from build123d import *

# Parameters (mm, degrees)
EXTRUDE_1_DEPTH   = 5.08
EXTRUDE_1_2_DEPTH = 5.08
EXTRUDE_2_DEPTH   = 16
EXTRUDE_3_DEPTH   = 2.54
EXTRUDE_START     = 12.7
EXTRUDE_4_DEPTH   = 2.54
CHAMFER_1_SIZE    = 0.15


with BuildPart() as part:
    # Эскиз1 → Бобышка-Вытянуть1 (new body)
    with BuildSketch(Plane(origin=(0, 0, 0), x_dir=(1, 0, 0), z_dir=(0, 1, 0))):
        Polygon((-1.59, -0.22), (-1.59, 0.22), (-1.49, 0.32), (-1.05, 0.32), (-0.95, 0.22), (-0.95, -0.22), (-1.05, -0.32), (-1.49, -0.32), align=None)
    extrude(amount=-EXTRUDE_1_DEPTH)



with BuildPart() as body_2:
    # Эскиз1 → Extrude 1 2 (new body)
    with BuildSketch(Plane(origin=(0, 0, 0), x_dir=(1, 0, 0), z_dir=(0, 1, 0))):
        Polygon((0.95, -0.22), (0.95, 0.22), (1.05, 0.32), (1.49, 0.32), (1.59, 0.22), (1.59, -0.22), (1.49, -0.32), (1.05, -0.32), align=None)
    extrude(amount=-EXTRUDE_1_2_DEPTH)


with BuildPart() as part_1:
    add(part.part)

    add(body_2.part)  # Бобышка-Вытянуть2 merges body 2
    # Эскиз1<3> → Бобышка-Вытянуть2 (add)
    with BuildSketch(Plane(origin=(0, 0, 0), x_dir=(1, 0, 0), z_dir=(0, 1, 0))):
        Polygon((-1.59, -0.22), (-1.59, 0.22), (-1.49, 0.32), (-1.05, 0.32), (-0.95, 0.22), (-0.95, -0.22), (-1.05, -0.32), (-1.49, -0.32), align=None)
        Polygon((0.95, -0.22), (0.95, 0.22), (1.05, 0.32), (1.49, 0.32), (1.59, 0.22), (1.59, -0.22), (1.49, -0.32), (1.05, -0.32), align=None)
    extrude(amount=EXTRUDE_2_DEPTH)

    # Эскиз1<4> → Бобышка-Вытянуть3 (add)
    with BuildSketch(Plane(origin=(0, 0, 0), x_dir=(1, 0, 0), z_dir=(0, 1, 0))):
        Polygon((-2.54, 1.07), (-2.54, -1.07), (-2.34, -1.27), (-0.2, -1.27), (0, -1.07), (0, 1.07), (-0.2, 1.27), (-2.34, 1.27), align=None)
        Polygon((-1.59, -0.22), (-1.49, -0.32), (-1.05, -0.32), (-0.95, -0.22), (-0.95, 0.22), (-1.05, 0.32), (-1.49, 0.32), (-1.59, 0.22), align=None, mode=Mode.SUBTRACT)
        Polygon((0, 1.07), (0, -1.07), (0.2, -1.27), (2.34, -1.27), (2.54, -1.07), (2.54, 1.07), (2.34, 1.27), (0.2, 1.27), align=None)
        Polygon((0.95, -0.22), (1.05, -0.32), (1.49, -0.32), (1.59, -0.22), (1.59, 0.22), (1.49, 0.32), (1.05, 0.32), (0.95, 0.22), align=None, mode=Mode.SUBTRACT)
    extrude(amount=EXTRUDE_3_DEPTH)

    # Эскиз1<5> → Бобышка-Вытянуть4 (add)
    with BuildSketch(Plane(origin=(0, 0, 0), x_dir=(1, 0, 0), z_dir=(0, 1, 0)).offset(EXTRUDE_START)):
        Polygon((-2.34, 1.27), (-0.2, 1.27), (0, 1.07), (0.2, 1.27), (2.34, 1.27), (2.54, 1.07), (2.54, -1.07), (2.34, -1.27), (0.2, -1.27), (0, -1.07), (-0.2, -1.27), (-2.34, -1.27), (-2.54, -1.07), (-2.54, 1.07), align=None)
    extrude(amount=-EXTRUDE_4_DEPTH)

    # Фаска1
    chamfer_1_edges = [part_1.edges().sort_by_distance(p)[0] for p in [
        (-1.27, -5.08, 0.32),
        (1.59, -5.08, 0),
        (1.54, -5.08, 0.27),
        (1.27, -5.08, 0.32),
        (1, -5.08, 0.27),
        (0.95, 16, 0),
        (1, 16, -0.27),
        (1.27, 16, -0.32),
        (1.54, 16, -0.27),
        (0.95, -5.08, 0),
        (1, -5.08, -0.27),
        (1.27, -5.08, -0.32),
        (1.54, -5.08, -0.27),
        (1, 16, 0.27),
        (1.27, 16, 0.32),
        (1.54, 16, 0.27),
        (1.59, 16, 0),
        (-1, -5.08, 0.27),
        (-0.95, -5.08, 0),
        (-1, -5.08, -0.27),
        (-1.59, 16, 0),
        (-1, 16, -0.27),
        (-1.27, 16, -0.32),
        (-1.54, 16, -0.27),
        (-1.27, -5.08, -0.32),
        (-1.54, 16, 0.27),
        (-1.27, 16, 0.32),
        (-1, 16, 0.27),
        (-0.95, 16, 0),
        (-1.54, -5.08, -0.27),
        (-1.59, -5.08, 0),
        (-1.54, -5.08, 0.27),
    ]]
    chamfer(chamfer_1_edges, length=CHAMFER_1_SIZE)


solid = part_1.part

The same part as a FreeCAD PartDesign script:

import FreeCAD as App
import Part
import Sketcher
from FreeCAD import Vector
Q = App.Units.Quantity


def edges_at(feature, points):
    """Names of the edges that pass closest to the given points."""
    edges = feature.Shape.Edges
    near = lambda p: min(range(len(edges)), key=lambda i: edges[i].distToShape(Part.Vertex(*p))[0])
    return sorted({f"Edge{near(p) + 1}" for p in points})


def add_polygon(sketch, points):
    """Adds a closed chain of lines whose ends are joined by coincident constraints."""
    first, n = sketch.GeometryCount, len(points)
    for a, b in zip(points, points[1:] + points[:1]):
        sketch.addGeometry(Part.LineSegment(App.Vector(*a, 0), App.Vector(*b, 0)), False)
    for i in range(n):
        sketch.addConstraint(Sketcher.Constraint("Coincident", first + i, 2, first + (i + 1) % n, 1))

doc = App.newDocument("Part")
body = doc.addObject("PartDesign::Body", "Body")

sketch1 = body.newObject("Sketcher::SketchObject", "Sketch")
sketch1.AttachmentSupport = (doc.getObject("XZ_Plane"), [""])
sketch1.MapMode = "FlatFace"
add_polygon(sketch1, [(-1.59, -0.22), (-1.59, 0.22), (-1.49, 0.32), (-1.05, 0.32), (-0.95, 0.22), (-0.95, -0.22), (-1.05, -0.32), (-1.49, -0.32)])
sketch1.addConstraint(Sketcher.Constraint("Vertical", 0))
sketch1.addConstraint(Sketcher.Constraint("Horizontal", 2))
sketch1.addConstraint(Sketcher.Constraint("Vertical", 4))
sketch1.addConstraint(Sketcher.Constraint("Horizontal", 6))
sketch1.addConstraint(Sketcher.Constraint("Symmetric", 2, 2, 5, 2, -1))
sketch1.addConstraint(Sketcher.Constraint("Perpendicular", 1, 3))
sketch1.addConstraint(Sketcher.Constraint("Perpendicular", 3, 5))
sketch1.addConstraint(Sketcher.Constraint("Perpendicular", 5, 7))
sketch1.addConstraint(Sketcher.Constraint("Horizontal", 0, 2, 3, 2))
sketch1.addConstraint(Sketcher.Constraint("Horizontal", 4, 2, 7, 2))
sketch1.addConstraint(Sketcher.Constraint("Vertical", 1, 2, 6, 2))
sketch1.addConstraint(Sketcher.Constraint("Equal", 6, 0))
sketch1.addConstraint(Sketcher.Constraint("DistanceX", 2, 1, 2, 2, Q("0.44 mm")))
sketch1.addConstraint(Sketcher.Constraint("DistanceX", 0, 2, -1, 1, Q("1.59 mm")))
sketch1.addConstraint(Sketcher.Constraint("DistanceX", 1, 2, -1, 1, Q("1.49 mm")))
pad1 = body.newObject("PartDesign::Pad", "Pad")
pad1.Profile = sketch1
pad1.Length = Q("0.2 in")
body2 = doc.addObject("PartDesign::Body", "Body001")

sketch2 = body2.newObject("Sketcher::SketchObject", "Sketch001")
sketch2.AttachmentSupport = (doc.getObject("XZ_Plane001"), [""])
sketch2.MapMode = "FlatFace"
add_polygon(sketch2, [(0.95, -0.22), (0.95, 0.22), (1.05, 0.32), (1.49, 0.32), (1.59, 0.22), (1.59, -0.22), (1.49, -0.32), (1.05, -0.32)])
sketch2.addConstraint(Sketcher.Constraint("Vertical", 0))
sketch2.addConstraint(Sketcher.Constraint("Horizontal", 2))
sketch2.addConstraint(Sketcher.Constraint("Vertical", 4))
sketch2.addConstraint(Sketcher.Constraint("Horizontal", 6))
sketch2.addConstraint(Sketcher.Constraint("Symmetric", 2, 2, 5, 2, -1))
sketch2.addConstraint(Sketcher.Constraint("Perpendicular", 1, 3))
sketch2.addConstraint(Sketcher.Constraint("Perpendicular", 3, 5))
sketch2.addConstraint(Sketcher.Constraint("Perpendicular", 5, 7))
sketch2.addConstraint(Sketcher.Constraint("Horizontal", 0, 2, 3, 2))
sketch2.addConstraint(Sketcher.Constraint("Horizontal", 4, 2, 7, 2))
sketch2.addConstraint(Sketcher.Constraint("Vertical", 1, 2, 6, 2))
sketch2.addConstraint(Sketcher.Constraint("Equal", 6, 0))
sketch2.addConstraint(Sketcher.Constraint("DistanceX", 2, 1, 2, 2, Q("0.44 mm")))
sketch2.addConstraint(Sketcher.Constraint("DistanceX", -1, 1, 0, 2, Q("0.95 mm")))
sketch2.addConstraint(Sketcher.Constraint("DistanceX", -1, 1, 1, 2, Q("1.05 mm")))
pad2 = body2.newObject("PartDesign::Pad", "Pad001")
pad2.Profile = sketch2
pad2.Length = Q("0.2 in")
body.AllowCompound = True
doc.recompute()

boolean = body.newObject("PartDesign::Boolean", "Boolean")
boolean.Type = "Fuse"
boolean.addObjects([body2])

sketch3 = body.newObject("Sketcher::SketchObject", "Sketch002")
sketch3.AttachmentSupport = (doc.getObject("XZ_Plane"), [""])
sketch3.MapMode = "FlatFace"
add_polygon(sketch3, [(-1.59, -0.22), (-1.59, 0.22), (-1.49, 0.32), (-1.05, 0.32), (-0.95, 0.22), (-0.95, -0.22), (-1.05, -0.32), (-1.49, -0.32)])
add_polygon(sketch3, [(0.95, -0.22), (0.95, 0.22), (1.05, 0.32), (1.49, 0.32), (1.59, 0.22), (1.59, -0.22), (1.49, -0.32), (1.05, -0.32)])
sketch3.addConstraint(Sketcher.Constraint("Vertical", 0))
sketch3.addConstraint(Sketcher.Constraint("Horizontal", 2))
sketch3.addConstraint(Sketcher.Constraint("Vertical", 4))
sketch3.addConstraint(Sketcher.Constraint("Horizontal", 6))
sketch3.addConstraint(Sketcher.Constraint("Vertical", 8))
sketch3.addConstraint(Sketcher.Constraint("Horizontal", 10))
sketch3.addConstraint(Sketcher.Constraint("Vertical", 12))
sketch3.addConstraint(Sketcher.Constraint("Horizontal", 14))
sketch3.addConstraint(Sketcher.Constraint("Symmetric", 4, 2, 8, 2, -1, 1))
sketch3.addConstraint(Sketcher.Constraint("Symmetric", 5, 2, 9, 2, -1, 1))
sketch3.addConstraint(Sketcher.Constraint("Symmetric", 7, 2, 11, 2, -1, 1))
sketch3.addConstraint(Sketcher.Constraint("Symmetric", 1, 2, 13, 2, -1, 1))
sketch3.addConstraint(Sketcher.Constraint("Symmetric", 2, 2, 9, 2, -2))
sketch3.addConstraint(Sketcher.Constraint("Perpendicular", 1, 3))
sketch3.addConstraint(Sketcher.Constraint("Perpendicular", 3, 5))
sketch3.addConstraint(Sketcher.Constraint("Perpendicular", 5, 7))
sketch3.addConstraint(Sketcher.Constraint("Perpendicular", 9, 11))
sketch3.addConstraint(Sketcher.Constraint("Perpendicular", 11, 13))
sketch3.addConstraint(Sketcher.Constraint("Perpendicular", 13, 15))
sketch3.addConstraint(Sketcher.Constraint("Horizontal", 0, 2, 3, 2))
sketch3.addConstraint(Sketcher.Constraint("Horizontal", 4, 2, 7, 2))
sketch3.addConstraint(Sketcher.Constraint("Horizontal", 3, 2, 8, 2))
sketch3.addConstraint(Sketcher.Constraint("Horizontal", 12, 2, 15, 2))
sketch3.addConstraint(Sketcher.Constraint("Equal", 14, 0))
sketch3.addConstraint(Sketcher.Constraint("DistanceX", 2, 2, 10, 2, Q("0.1 in")))
sketch3.addConstraint(Sketcher.Constraint("DistanceX", 2, 1, 2, 2, Q("0.44 mm")))
sketch3.addConstraint(Sketcher.Constraint("DistanceX", 0, 2, -1, 1, Q("1.59 mm")))
pad3 = body.newObject("PartDesign::Pad", "Pad002")
pad3.Profile = sketch3
pad3.Length = 16
pad3.Reversed = True

sketch4 = body.newObject("Sketcher::SketchObject", "Sketch003")
sketch4.AttachmentSupport = (doc.getObject("XZ_Plane"), [""])
sketch4.MapMode = "FlatFace"
add_polygon(sketch4, [(-2.54, -1.07), (-2.54, 1.07), (-2.34, 1.27), (-0.2, 1.27), (0, 1.07), (0.2, 1.27), (2.34, 1.27), (2.54, 1.07), (2.54, -1.07), (2.34, -1.27), (0.2, -1.27), (0, -1.07), (-0.2, -1.27), (-2.34, -1.27)])
add_polygon(sketch4, [(-1.49, 0.32), (-1.59, 0.22), (-1.59, -0.22), (-1.49, -0.32), (-1.05, -0.32), (-0.95, -0.22), (-0.95, 0.22), (-1.05, 0.32)])
add_polygon(sketch4, [(1.05, 0.32), (0.95, 0.22), (0.95, -0.22), (1.05, -0.32), (1.49, -0.32), (1.59, -0.22), (1.59, 0.22), (1.49, 0.32)])
sketch4.addConstraint(Sketcher.Constraint("Vertical", 0))
sketch4.addConstraint(Sketcher.Constraint("Horizontal", 2))
sketch4.addConstraint(Sketcher.Constraint("Horizontal", 5))
sketch4.addConstraint(Sketcher.Constraint("Vertical", 7))
sketch4.addConstraint(Sketcher.Constraint("Horizontal", 9))
sketch4.addConstraint(Sketcher.Constraint("Horizontal", 12))
sketch4.addConstraint(Sketcher.Constraint("Vertical", 15))
sketch4.addConstraint(Sketcher.Constraint("Horizontal", 17))
sketch4.addConstraint(Sketcher.Constraint("Vertical", 19))
sketch4.addConstraint(Sketcher.Constraint("Horizontal", 21))
sketch4.addConstraint(Sketcher.Constraint("Vertical", 23))
sketch4.addConstraint(Sketcher.Constraint("Horizontal", 25))
sketch4.addConstraint(Sketcher.Constraint("Vertical", 27))
sketch4.addConstraint(Sketcher.Constraint("Horizontal", 29))
sketch4.addConstraint(Sketcher.Constraint("Symmetric", 0, 2, 7, 2, -1, 1))
sketch4.addConstraint(Sketcher.Constraint("Symmetric", 1, 2, 8, 2, -1, 1))
sketch4.addConstraint(Sketcher.Constraint("Symmetric", 3, 2, 10, 2, -1, 1))
sketch4.addConstraint(Sketcher.Constraint("Symmetric", 4, 2, 11, 2, -1, 1))
sketch4.addConstraint(Sketcher.Constraint("Symmetric", 18, 2, 22, 2, -1, 1))
sketch4.addConstraint(Sketcher.Constraint("Symmetric", 20, 2, 24, 2, -1, 1))
sketch4.addConstraint(Sketcher.Constraint("Symmetric", 14, 2, 26, 2, -1, 1))
sketch4.addConstraint(Sketcher.Constraint("Symmetric", 16, 2, 28, 2, -1, 1))
sketch4.addConstraint(Sketcher.Constraint("Symmetric", 2, 2, 4, 2, -2))
sketch4.addConstraint(Sketcher.Constraint("Symmetric", 17, 2, 24, 2, -2))
sketch4.addConstraint(Sketcher.Constraint("PointOnObject", 3, 2, -2))
sketch4.addConstraint(Sketcher.Constraint("Perpendicular", 1, 3))
sketch4.addConstraint(Sketcher.Constraint("Perpendicular", 3, 4))
sketch4.addConstraint(Sketcher.Constraint("Perpendicular", 4, 6))
sketch4.addConstraint(Sketcher.Constraint("Perpendicular", 8, 10))
sketch4.addConstraint(Sketcher.Constraint("Perpendicular", 11, 13))
sketch4.addConstraint(Sketcher.Constraint("Perpendicular", 13, 14))
sketch4.addConstraint(Sketcher.Constraint("Perpendicular", 14, 16))
sketch4.addConstraint(Sketcher.Constraint("Perpendicular", 16, 18))
sketch4.addConstraint(Sketcher.Constraint("Perpendicular", 18, 20))
sketch4.addConstraint(Sketcher.Constraint("Perpendicular", 20, 22))
sketch4.addConstraint(Sketcher.Constraint("Perpendicular", 22, 24))
sketch4.addConstraint(Sketcher.Constraint("Perpendicular", 24, 26))
sketch4.addConstraint(Sketcher.Constraint("Perpendicular", 26, 28))
sketch4.addConstraint(Sketcher.Constraint("Horizontal", 0, 2, 3, 2))
sketch4.addConstraint(Sketcher.Constraint("Horizontal", 3, 2, 6, 2))
sketch4.addConstraint(Sketcher.Constraint("Horizontal", 10, 2, 13, 2))
sketch4.addConstraint(Sketcher.Constraint("Horizontal", 15, 2, 18, 2))
sketch4.addConstraint(Sketcher.Constraint("Horizontal", 14, 2, 19, 2))
sketch4.addConstraint(Sketcher.Constraint("Equal", 12, 0))
sketch4.addConstraint(Sketcher.Constraint("Equal", 29, 15))
sketch4.addConstraint(Sketcher.Constraint("DistanceX", 0, 2, -1, 1, Q("0.1 in")))
sketch4.addConstraint(Sketcher.Constraint("DistanceX", 2, 1, 2, 2, Q("2.14 mm")))
sketch4.addConstraint(Sketcher.Constraint("DistanceX", 17, 1, 17, 2, Q("0.44 mm")))
sketch4.addConstraint(Sketcher.Constraint("DistanceX", 14, 2, -1, 1, Q("1.59 mm")))
sketch4.addConstraint(Sketcher.Constraint("DistanceX", 16, 2, -1, 1, Q("1.49 mm")))
pad4 = body.newObject("PartDesign::Pad", "Pad003")
pad4.Profile = sketch4
pad4.Length = Q("0.1 in")
pad4.Reversed = True

sketch5 = body.newObject("Sketcher::SketchObject", "Sketch004")
sketch5.AttachmentSupport = (doc.getObject("XZ_Plane"), [""])
sketch5.MapMode = "FlatFace"
sketch5.AttachmentOffset = App.Placement(Vector(0, 0, -0.5 * 25.4), App.Rotation())
add_polygon(sketch5, [(-0.2, -1.27), (-2.34, -1.27), (-2.54, -1.07), (-2.54, 1.07), (-2.34, 1.27), (-0.2, 1.27), (0, 1.07), (0.2, 1.27), (2.34, 1.27), (2.54, 1.07), (2.54, -1.07), (2.34, -1.27), (0.2, -1.27), (0, -1.07)])
sketch5.addConstraint(Sketcher.Constraint("Horizontal", 0))
sketch5.addConstraint(Sketcher.Constraint("Vertical", 2))
sketch5.addConstraint(Sketcher.Constraint("Horizontal", 4))
sketch5.addConstraint(Sketcher.Constraint("Horizontal", 7))
sketch5.addConstraint(Sketcher.Constraint("Vertical", 9))
sketch5.addConstraint(Sketcher.Constraint("Horizontal", 11))
sketch5.addConstraint(Sketcher.Constraint("Symmetric", 0, 2, 7, 2, -1, 1))
sketch5.addConstraint(Sketcher.Constraint("Symmetric", 1, 2, 8, 2, -1, 1))
sketch5.addConstraint(Sketcher.Constraint("Symmetric", 3, 2, 10, 2, -1, 1))
sketch5.addConstraint(Sketcher.Constraint("Symmetric", 5, 2, 12, 2, -1, 1))
sketch5.addConstraint(Sketcher.Constraint("Symmetric", 4, 2, 6, 2, -2))
sketch5.addConstraint(Sketcher.Constraint("PointOnObject", 5, 2, -2))
sketch5.addConstraint(Sketcher.Constraint("Perpendicular", 1, 3))
sketch5.addConstraint(Sketcher.Constraint("Perpendicular", 3, 5))
sketch5.addConstraint(Sketcher.Constraint("Perpendicular", 5, 6))
sketch5.addConstraint(Sketcher.Constraint("Perpendicular", 8, 10))
sketch5.addConstraint(Sketcher.Constraint("Perpendicular", 10, 12))
sketch5.addConstraint(Sketcher.Constraint("Perpendicular", 12, 13))
sketch5.addConstraint(Sketcher.Constraint("Horizontal", 2, 2, 5, 2))
sketch5.addConstraint(Sketcher.Constraint("Horizontal", 5, 2, 8, 2))
sketch5.addConstraint(Sketcher.Constraint("Equal", 11, 2))
sketch5.addConstraint(Sketcher.Constraint("DistanceX", 1, 2, -1, 1, Q("0.1 in")))
sketch5.addConstraint(Sketcher.Constraint("DistanceX", 0, 2, 0, 1, Q("2.14 mm")))
pad5 = body.newObject("PartDesign::Pad", "Pad004")
pad5.Profile = sketch5
pad5.Length = Q("0.1 in")
doc.recompute()

chamfer = body.newObject("PartDesign::Chamfer", "Chamfer")
chamfer.Base = (pad5, edges_at(pad5, [
    (-1.27, -5.08, 0.32),
    (1.59, -5.08, 0),
    (1.54, -5.08, 0.27),
    (1.27, -5.08, 0.32),
    (1, -5.08, 0.27),
    (0.95, 16, 0),
    (1, 16, -0.27),
    (1.27, 16, -0.32),
    (1.54, 16, -0.27),
    (0.95, -5.08, 0),
    (1, -5.08, -0.27),
    (1.27, -5.08, -0.32),
    (1.54, -5.08, -0.27),
    (1, 16, 0.27),
    (1.27, 16, 0.32),
    (1.54, 16, 0.27),
    (1.59, 16, 0),
    (-1, -5.08, 0.27),
    (-0.95, -5.08, 0),
    (-1, -5.08, -0.27),
    (-1.59, 16, 0),
    (-1, 16, -0.27),
    (-1.27, 16, -0.32),
    (-1.54, 16, -0.27),
    (-1.27, -5.08, -0.32),
    (-1.54, 16, 0.27),
    (-1.27, 16, 0.32),
    (-1, 16, 0.27),
    (-0.95, 16, 0),
    (-1.54, -5.08, -0.27),
    (-1.59, -5.08, 0),
    (-1.54, -5.08, 0.27),
]))
chamfer.Size = 0.15

doc.recompute()
